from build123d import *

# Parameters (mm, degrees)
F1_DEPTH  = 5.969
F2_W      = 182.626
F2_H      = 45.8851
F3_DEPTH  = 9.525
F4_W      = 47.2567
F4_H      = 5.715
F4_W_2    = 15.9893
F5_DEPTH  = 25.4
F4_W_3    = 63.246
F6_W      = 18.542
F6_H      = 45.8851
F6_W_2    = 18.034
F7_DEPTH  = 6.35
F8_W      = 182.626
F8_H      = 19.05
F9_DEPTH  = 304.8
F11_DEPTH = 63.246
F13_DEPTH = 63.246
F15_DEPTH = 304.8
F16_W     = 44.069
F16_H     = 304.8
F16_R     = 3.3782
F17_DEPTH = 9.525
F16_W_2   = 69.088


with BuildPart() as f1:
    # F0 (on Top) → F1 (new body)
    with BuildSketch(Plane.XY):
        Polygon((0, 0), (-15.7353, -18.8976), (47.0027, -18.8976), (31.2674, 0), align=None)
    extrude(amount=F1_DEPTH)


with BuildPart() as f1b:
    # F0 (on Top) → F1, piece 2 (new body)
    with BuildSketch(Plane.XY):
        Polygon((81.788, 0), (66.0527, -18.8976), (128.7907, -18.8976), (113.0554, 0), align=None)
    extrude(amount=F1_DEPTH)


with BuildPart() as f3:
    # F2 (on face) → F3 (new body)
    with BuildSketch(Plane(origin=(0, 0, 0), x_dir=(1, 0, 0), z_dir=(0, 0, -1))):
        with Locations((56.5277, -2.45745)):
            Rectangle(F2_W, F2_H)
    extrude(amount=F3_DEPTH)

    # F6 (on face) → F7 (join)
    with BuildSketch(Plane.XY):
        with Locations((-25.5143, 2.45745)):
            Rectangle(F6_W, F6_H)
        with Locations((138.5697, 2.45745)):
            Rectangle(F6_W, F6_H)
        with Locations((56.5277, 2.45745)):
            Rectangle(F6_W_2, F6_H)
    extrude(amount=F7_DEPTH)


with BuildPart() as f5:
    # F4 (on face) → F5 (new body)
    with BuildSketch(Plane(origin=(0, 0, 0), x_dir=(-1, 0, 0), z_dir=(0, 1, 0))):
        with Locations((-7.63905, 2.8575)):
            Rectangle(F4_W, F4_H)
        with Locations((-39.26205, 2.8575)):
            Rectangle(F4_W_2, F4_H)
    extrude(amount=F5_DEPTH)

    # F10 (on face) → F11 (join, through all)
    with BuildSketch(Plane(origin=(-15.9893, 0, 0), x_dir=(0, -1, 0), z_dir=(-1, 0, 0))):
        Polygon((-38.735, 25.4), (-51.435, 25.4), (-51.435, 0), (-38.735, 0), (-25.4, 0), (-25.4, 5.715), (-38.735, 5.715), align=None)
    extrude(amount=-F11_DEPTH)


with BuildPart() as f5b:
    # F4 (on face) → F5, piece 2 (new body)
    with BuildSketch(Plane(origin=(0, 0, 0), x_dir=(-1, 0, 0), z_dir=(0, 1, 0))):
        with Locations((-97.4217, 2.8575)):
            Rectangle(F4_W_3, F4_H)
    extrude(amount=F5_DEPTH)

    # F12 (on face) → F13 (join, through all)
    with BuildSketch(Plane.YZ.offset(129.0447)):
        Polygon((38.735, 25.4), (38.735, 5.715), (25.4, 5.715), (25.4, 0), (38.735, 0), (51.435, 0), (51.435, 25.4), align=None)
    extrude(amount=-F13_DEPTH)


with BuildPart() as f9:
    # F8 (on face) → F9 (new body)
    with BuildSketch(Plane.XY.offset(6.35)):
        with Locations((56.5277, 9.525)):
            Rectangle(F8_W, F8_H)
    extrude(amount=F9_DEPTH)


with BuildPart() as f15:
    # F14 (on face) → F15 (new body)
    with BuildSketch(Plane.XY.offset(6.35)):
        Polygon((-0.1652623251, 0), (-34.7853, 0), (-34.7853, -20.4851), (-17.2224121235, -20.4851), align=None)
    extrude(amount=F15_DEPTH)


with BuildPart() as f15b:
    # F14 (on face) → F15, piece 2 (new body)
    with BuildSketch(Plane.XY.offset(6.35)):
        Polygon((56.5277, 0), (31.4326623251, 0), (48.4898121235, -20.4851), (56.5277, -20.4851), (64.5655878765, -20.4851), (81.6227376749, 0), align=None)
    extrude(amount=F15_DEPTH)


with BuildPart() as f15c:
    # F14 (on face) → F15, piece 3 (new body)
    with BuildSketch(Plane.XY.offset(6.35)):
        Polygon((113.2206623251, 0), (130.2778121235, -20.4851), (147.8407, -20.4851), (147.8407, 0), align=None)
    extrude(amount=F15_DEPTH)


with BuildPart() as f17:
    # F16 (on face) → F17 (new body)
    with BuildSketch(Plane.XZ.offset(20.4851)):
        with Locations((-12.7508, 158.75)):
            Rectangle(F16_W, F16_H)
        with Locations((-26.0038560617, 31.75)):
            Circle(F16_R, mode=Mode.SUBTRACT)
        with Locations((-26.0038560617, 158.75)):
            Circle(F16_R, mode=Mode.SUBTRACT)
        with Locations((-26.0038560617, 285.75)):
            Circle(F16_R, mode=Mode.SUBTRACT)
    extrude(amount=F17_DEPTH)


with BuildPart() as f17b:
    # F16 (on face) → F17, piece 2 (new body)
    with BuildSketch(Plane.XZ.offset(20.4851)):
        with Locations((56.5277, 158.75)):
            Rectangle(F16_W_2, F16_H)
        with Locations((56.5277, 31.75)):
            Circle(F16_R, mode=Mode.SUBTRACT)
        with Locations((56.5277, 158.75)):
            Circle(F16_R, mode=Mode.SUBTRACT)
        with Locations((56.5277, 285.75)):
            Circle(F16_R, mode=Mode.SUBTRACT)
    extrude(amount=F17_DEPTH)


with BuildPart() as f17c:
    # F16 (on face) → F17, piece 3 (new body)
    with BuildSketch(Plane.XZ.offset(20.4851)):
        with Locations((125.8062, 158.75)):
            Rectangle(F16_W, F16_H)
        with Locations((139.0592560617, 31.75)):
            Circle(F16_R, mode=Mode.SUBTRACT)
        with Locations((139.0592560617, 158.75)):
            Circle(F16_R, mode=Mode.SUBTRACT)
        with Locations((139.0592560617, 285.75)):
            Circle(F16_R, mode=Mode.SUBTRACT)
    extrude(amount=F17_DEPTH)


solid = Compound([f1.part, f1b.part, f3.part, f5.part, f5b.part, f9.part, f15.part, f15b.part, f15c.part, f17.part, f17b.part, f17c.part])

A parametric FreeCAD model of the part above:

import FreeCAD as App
import Part
import Sketcher
from FreeCAD import Vector
Q = App.Units.Quantity


def add_polygon(sketch, points):
    """Adds a closed chain of lines whose ends are joined by coincident constraints."""
    first, n = sketch.GeometryCount, len(points)
    for a, b in zip(points, points[1:] + points[:1]):
        sketch.addGeometry(Part.LineSegment(App.Vector(*a, 0), App.Vector(*b, 0)), False)
    for i in range(n):
        sketch.addConstraint(Sketcher.Constraint("Coincident", first + i, 2, first + (i + 1) % n, 1))

doc = App.newDocument("Part")
body = doc.addObject("PartDesign::Body", "Body")

sketch1 = body.newObject("Sketcher::SketchObject", "Sketch")
sketch1.AttachmentSupport = (doc.getObject("XY_Plane"), [""])
sketch1.MapMode = "FlatFace"
add_polygon(sketch1, [(0, 0), (-16, -19), (47, -19), (31, 0)])
sketch1.addConstraint([
    Sketcher.Constraint("Horizontal", 1),
    Sketcher.Constraint("Horizontal", 3),
    Sketcher.Constraint("Coincident", 3, 2, -1, 1),
    Sketcher.Constraint("Equal", 0, 2),
    Sketcher.Constraint("DistanceX", 1, 1, 1, 2, Q("2.47 in")),
    Sketcher.Constraint("DistanceX", 3, 2, 3, 1, Q("1.231 in")),
    Sketcher.Constraint("DistanceY", 0, 2, -1, 1, Q("0.744 in")),
])
pad1 = body.newObject("PartDesign::Pad", "Pad")
pad1.Profile = sketch1
pad1.Length = Q("0.235 in")
body2 = doc.addObject("PartDesign::Body", "Body001")

sketch2 = body2.newObject("Sketcher::SketchObject", "Sketch001")
sketch2.AttachmentSupport = (doc.getObject("XY_Plane001"), [""])
sketch2.MapMode = "FlatFace"
add_polygon(sketch2, [(82, 0), (66, -19), (129, -19), (113, 0)])
sketch2.addConstraint([
    Sketcher.Constraint("Horizontal", 1),
    Sketcher.Constraint("Horizontal", 3),
    Sketcher.Constraint("PointOnObject", 2, 2, -1),
    Sketcher.Constraint("Equal", 0, 2),
    Sketcher.Constraint("DistanceX", 1, 1, 1, 2, Q("2.47 in")),
    Sketcher.Constraint("DistanceX", 3, 2, 3, 1, Q("1.231 in")),
    Sketcher.Constraint("DistanceX", -1, 1, 3, 2, Q("3.22 in")),
    Sketcher.Constraint("DistanceY", 0, 2, -1, 1, Q("0.744 in")),
])
pad2 = body2.newObject("PartDesign::Pad", "Pad001")
pad2.Profile = sketch2
pad2.Length = Q("0.235 in")
body3 = doc.addObject("PartDesign::Body", "Body002")

sketch3 = body3.newObject("Sketcher::SketchObject", "Sketch002")
sketch3.AttachmentSupport = (doc.getObject("XY_Plane002"), [""])
sketch3.MapMode = "FlatFace"
add_polygon(sketch3, [(-35, -20), (-35, 25), (148, 25), (148, -20)])
sketch3.addConstraint([
    Sketcher.Constraint("Vertical", 0),
    Sketcher.Constraint("Horizontal", 1),
    Sketcher.Constraint("Vertical", 2),
    Sketcher.Constraint("Horizontal", 3),
    Sketcher.Constraint("DistanceY", -1, 1, 0, 2, Q("1 in")),
    Sketcher.Constraint("DistanceX", 1, 1, 1, 2, Q("7.19 in")),
    Sketcher.Constraint("DistanceY", 0, 1, 0, 2, Q("1.8065 in")),
    Sketcher.Constraint("DistanceX", 0, 2, -1, 1, Q("1.3695 in")),
])
pad3 = body3.newObject("PartDesign::Pad", "Pad002")
pad3.Profile = sketch3
pad3.Length = Q("0.375 in")
pad3.Reversed = True

sketch4 = body3.newObject("Sketcher::SketchObject", "Sketch003")
sketch4.AttachmentSupport = (doc.getObject("XY_Plane002"), [""])
sketch4.MapMode = "FlatFace"
add_polygon(sketch4, [(-35, 25), (-35, -20), (-16, -20), (-16, 25)])
add_polygon(sketch4, [(129, 25), (129, -20), (148, -20), (148, 25)])
add_polygon(sketch4, [(48, 25), (48, -20), (66, -20), (66, 25)])
sketch4.addConstraint([
    Sketcher.Constraint("Vertical", 0),
    Sketcher.Constraint("Horizontal", 1),
    Sketcher.Constraint("Vertical", 2),
    Sketcher.Constraint("Horizontal", 3),
    Sketcher.Constraint("Vertical", 4),
    Sketcher.Constraint("Horizontal", 5),
    Sketcher.Constraint("Vertical", 6),
    Sketcher.Constraint("Horizontal", 7),
    Sketcher.Constraint("Vertical", 8),
    Sketcher.Constraint("Horizontal", 9),
    Sketcher.Constraint("Vertical", 10),
    Sketcher.Constraint("Horizontal", 11),
    Sketcher.Constraint("Horizontal", 1, 2, 4, 2),
    Sketcher.Constraint("Horizontal", 3, 2, 6, 2),
    Sketcher.Constraint("Horizontal", 5, 2, 8, 2),
    Sketcher.Constraint("Horizontal", 7, 2, 10, 2),
    Sketcher.Constraint("Equal", 3, 5),
    Sketcher.Constraint("DistanceY", -1, 1, 2, 2, Q("1 in")),
    Sketcher.Constraint("DistanceX", 1, 1, 1, 2, Q("0.73 in")),
    Sketcher.Constraint("DistanceX", 9, 1, 9, 2, Q("0.71 in")),
    Sketcher.Constraint("DistanceX", 1, 2, 4, 2, Q("5.73 in")),
    Sketcher.Constraint("DistanceX", 1, 2, 8, 2, Q("2.51 in")),
    Sketcher.Constraint("DistanceY", 0, 2, 0, 1, Q("1.8065 in")),
    Sketcher.Constraint("DistanceX", 0, 2, -1, 1, Q("1.3695 in")),
])
pad4 = body3.newObject("PartDesign::Pad", "Pad003")
pad4.Profile = sketch4
pad4.Length = Q("0.25 in")
body4 = doc.addObject("PartDesign::Body", "Body003")

sketch5 = body4.newObject("Sketcher::SketchObject", "Sketch004")
sketch5.AttachmentSupport = (doc.getObject("XZ_Plane003"), [""])
sketch5.MapMode = "FlatFace"
add_polygon(sketch5, [(-16, 0), (-16, 6), (47, 6), (47, 0)])
sketch5.addConstraint([
    Sketcher.Constraint("Vertical", 0),
    Sketcher.Constraint("Horizontal", 1),
    Sketcher.Constraint("Vertical", 2),
    Sketcher.Constraint("Horizontal", 3),
    Sketcher.Constraint("PointOnObject", 2, 2, -1),
    Sketcher.Constraint("DistanceX", 1, 1, 1, 2, Q("2.49 in")),
    Sketcher.Constraint("DistanceY", 0, 1, 0, 2, Q("0.225 in")),
    Sketcher.Constraint("DistanceX", 0, 2, -1, 1, Q("0.6295 in")),
])
pad5 = body4.newObject("PartDesign::Pad", "Pad004")
pad5.Profile = sketch5
pad5.Length = Q("1 in")
pad5.Reversed = True

sketch6 = body4.newObject("Sketcher::SketchObject", "Sketch005")
sketch6.AttachmentSupport = (doc.getObject("YZ_Plane003"), [""])
sketch6.MapMode = "FlatFace"
sketch6.AttachmentOffset = App.Placement(Vector(0, 0, -0.6295 * 25.4), App.Rotation())
add_polygon(sketch6, [(39, 25), (51, 25), (51, 0), (25, 0), (25, 6), (39, 6)])
sketch6.addConstraint([
    Sketcher.Constraint("Horizontal", 0),
    Sketcher.Constraint("Vertical", 1),
    Sketcher.Constraint("Horizontal", 2),
    Sketcher.Constraint("Vertical", 3),
    Sketcher.Constraint("Horizontal", 4),
    Sketcher.Constraint("Vertical", 5),
    Sketcher.Constraint("PointOnObject", 1, 2, -1),
    Sketcher.Constraint("DistanceY", 1, 2, 1, 1, Q("1 in")),
    Sketcher.Constraint("DistanceX", 0, 1, 0, 2, Q("0.5 in")),
    Sketcher.Constraint("DistanceX", -1, 1, 2, 2, Q("1 in")),
    Sketcher.Constraint("DistanceX", 2, 2, 2, 1, Q("1.025 in")),
    Sketcher.Constraint("DistanceY", 3, 1, 3, 2, Q("0.225 in")),
])
pad6 = body4.newObject("PartDesign::Pad", "Pad005")
pad6.Profile = sketch6
pad6.Length = Q("2.49 in")
body5 = doc.addObject("PartDesign::Body", "Body004")

sketch7 = body5.newObject("Sketcher::SketchObject", "Sketch006")
sketch7.AttachmentSupport = (doc.getObject("XZ_Plane004"), [""])
sketch7.MapMode = "FlatFace"
add_polygon(sketch7, [(129, 6), (129, 0), (66, 0), (66, 6)])
sketch7.addConstraint([
    Sketcher.Constraint("Vertical", 0),
    Sketcher.Constraint("Horizontal", 1),
    Sketcher.Constraint("Vertical", 2),
    Sketcher.Constraint("Horizontal", 3),
    Sketcher.Constraint("PointOnObject", 0, 2, -1),
    Sketcher.Constraint("DistanceX", 1, 2, 1, 1, Q("2.49 in")),
    Sketcher.Constraint("DistanceY", 0, 2, 0, 1, Q("0.225 in")),
    Sketcher.Constraint("DistanceX", -1, 1, 0, 2, Q("5.0805 in")),
])
pad7 = body5.newObject("PartDesign::Pad", "Pad006")
pad7.Profile = sketch7
pad7.Length = Q("1 in")
pad7.Reversed = True

sketch8 = body5.newObject("Sketcher::SketchObject", "Sketch007")
sketch8.AttachmentSupport = (doc.getObject("YZ_Plane004"), [""])
sketch8.MapMode = "FlatFace"
sketch8.AttachmentOffset = App.Placement(Vector(0, 0, 5.0805 * 25.4), App.Rotation())
add_polygon(sketch8, [(39, 25), (39, 6), (25, 6), (25, 0), (51, 0), (51, 25)])
sketch8.addConstraint([
    Sketcher.Constraint("Vertical", 0),
    Sketcher.Constraint("Horizontal", 1),
    Sketcher.Constraint("Vertical", 2),
    Sketcher.Constraint("Horizontal", 3),
    Sketcher.Constraint("Vertical", 4),
    Sketcher.Constraint("Horizontal", 5),
    Sketcher.Constraint("PointOnObject", 2, 2, -1),
    Sketcher.Constraint("DistanceY", 4, 1, 4, 2, Q("1 in")),
    Sketcher.Constraint("DistanceX", 5, 2, 5, 1, Q("0.5 in")),
    Sketcher.Constraint("DistanceX", -1, 1, 1, 2, Q("1 in")),
    Sketcher.Constraint("DistanceX", 1, 2, 1, 1, Q("0.525 in")),
    Sketcher.Constraint("DistanceY", 0, 2, 0, 1, Q("0.775 in")),
])
pad8 = body5.newObject("PartDesign::Pad", "Pad007")
pad8.Profile = sketch8
pad8.Length = Q("2.49 in")
pad8.Reversed = True
body6 = doc.addObject("PartDesign::Body", "Body005")

sketch9 = body6.newObject("Sketcher::SketchObject", "Sketch008")
sketch9.AttachmentSupport = (doc.getObject("XY_Plane005"), [""])
sketch9.MapMode = "FlatFace"
sketch9.AttachmentOffset = App.Placement(Vector(0, 0, 0.25 * 25.4), App.Rotation())
add_polygon(sketch9, [(-35, 19), (-35, 0), (148, 0), (148, 19)])
sketch9.addConstraint([
    Sketcher.Constraint("Vertical", 0),
    Sketcher.Constraint("Horizontal", 1),
    Sketcher.Constraint("Vertical", 2),
    Sketcher.Constraint("Horizontal", 3),
    Sketcher.Constraint("PointOnObject", 0, 2, -1),
    Sketcher.Constraint("DistanceX", 1, 1, 1, 2, Q("7.19 in")),
    Sketcher.Constraint("DistanceY", 0, 2, 0, 1, Q("0.75 in")),
    Sketcher.Constraint("DistanceX", 0, 2, -1, 1, Q("1.3695 in")),
])
pad9 = body6.newObject("PartDesign::Pad", "Pad008")
pad9.Profile = sketch9
pad9.Length = Q("12 in")
body7 = doc.addObject("PartDesign::Body", "Body006")

sketch10 = body7.newObject("Sketcher::SketchObject", "Sketch009")
sketch10.AttachmentSupport = (doc.getObject("XY_Plane006"), [""])
sketch10.MapMode = "FlatFace"
sketch10.AttachmentOffset = App.Placement(Vector(0, 0, 0.25 * 25.4), App.Rotation())
add_polygon(sketch10, [(0, 0), (-35, 0), (-35, -20), (-17, -20)])
sketch10.addConstraint([
    Sketcher.Constraint("Horizontal", 0),
    Sketcher.Constraint("Vertical", 1),
    Sketcher.Constraint("Horizontal", 2),
    Sketcher.Constraint("PointOnObject", 0, 2, -1),
    Sketcher.Constraint("DistanceY", 1, 2, 1, 1, Q("0.8065 in")),
    Sketcher.Constraint("DistanceX", 0, 2, -1, 1, Q("1.3695 in")),
    Sketcher.Constraint("DistanceX", 0, 2, 0, 1, 34.620038),
    Sketcher.Constraint("DistanceX", 2, 1, 2, 2, 17.562888),
])
pad10 = body7.newObject("PartDesign::Pad", "Pad009")
pad10.Profile = sketch10
pad10.Length = Q("12 in")
body8 = doc.addObject("PartDesign::Body", "Body007")

sketch11 = body8.newObject("Sketcher::SketchObject", "Sketch010")
sketch11.AttachmentSupport = (doc.getObject("XY_Plane007"), [""])
sketch11.MapMode = "FlatFace"
sketch11.AttachmentOffset = App.Placement(Vector(0, 0, 0.25 * 25.4), App.Rotation())
add_polygon(sketch11, [(31, 0), (48, -20), (65, -20), (82, 0)])
sketch11.addConstraint([
    Sketcher.Constraint("Horizontal", 1),
    Sketcher.Constraint("Horizontal", 3),
    Sketcher.Constraint("PointOnObject", 2, 2, -1),
    Sketcher.Constraint("Equal", 0, 2),
    Sketcher.Constraint("DistanceY", 0, 2, -1, 1, Q("0.8065 in")),
    Sketcher.Constraint("DistanceX", 1, 1, 1, 2, 16.075776),
    Sketcher.Constraint("DistanceX", 3, 2, 3, 1, 50.190075),
    Sketcher.Constraint("DistanceX", -1, 1, 0, 2, 48.489812),
])
pad11 = body8.newObject("PartDesign::Pad", "Pad010")
pad11.Profile = sketch11
pad11.Length = Q("12 in")
body9 = doc.addObject("PartDesign::Body", "Body008")

sketch12 = body9.newObject("Sketcher::SketchObject", "Sketch011")
sketch12.AttachmentSupport = (doc.getObject("XY_Plane008"), [""])
sketch12.MapMode = "FlatFace"
sketch12.AttachmentOffset = App.Placement(Vector(0, 0, 0.25 * 25.4), App.Rotation())
add_polygon(sketch12, [(113, 0), (130, -20), (148, -20), (148, 0)])
sketch12.addConstraint([
    Sketcher.Constraint("Horizontal", 1),
    Sketcher.Constraint("Vertical", 2),
    Sketcher.Constraint("Horizontal", 3),
    Sketcher.Constraint("PointOnObject", 2, 2, -1),
    Sketcher.Constraint("DistanceY", 2, 1, 2, 2, Q("0.8065 in")),
    Sketcher.Constraint("DistanceX", -1, 1, 1, 2, Q("5.8205 in")),
    Sketcher.Constraint("DistanceX", 1, 1, 1, 2, 17.562888),
    Sketcher.Constraint("DistanceX", 3, 2, 3, 1, 34.620038),
])
pad12 = body9.newObject("PartDesign::Pad", "Pad011")
pad12.Profile = sketch12
pad12.Length = Q("12 in")
body10 = doc.addObject("PartDesign::Body", "Body009")

sketch13 = body10.newObject("Sketcher::SketchObject", "Sketch012")
sketch13.AttachmentSupport = (doc.getObject("XZ_Plane009"), [""])
sketch13.MapMode = "FlatFace"
sketch13.AttachmentOffset = App.Placement(Vector(0, 0, 0.8065 * 25.4), App.Rotation())
add_polygon(sketch13, [(-34.8, 311.1), (-34.8, 6.3), (9.3, 6.3), (9.3, 311.1)])
sketch13.addGeometry(Part.Circle(Vector(-26, 31.8, 0), Vector(0, 0, 1), 3.4), False)
sketch13.addGeometry(Part.Circle(Vector(-26, 158.8, 0), Vector(0, 0, 1), 3.4), False)
sketch13.addGeometry(Part.Circle(Vector(-26, 285.8, 0), Vector(0, 0, 1), 3.4), False)
sketch13.addConstraint([
    Sketcher.Constraint("Vertical", 0),
    Sketcher.Constraint("Horizontal", 1),
    Sketcher.Constraint("Vertical", 2),
    Sketcher.Constraint("Horizontal", 3),
    Sketcher.Constraint("Equal", 4, 5),
    Sketcher.Constraint("Equal", 5, 6),
    Sketcher.Constraint("Vertical", 4, 3, 5, 3),
    Sketcher.Constraint("Vertical", 5, 3, 6, 3),
    Sketcher.Constraint("DistanceY", 0, 2, 0, 1, Q("12 in")),
    Sketcher.Constraint("Diameter", 4, Q("0.266 in")),
    Sketcher.Constraint("DistanceY", 4, 3, 5, 3, Q("5 in")),
    Sketcher.Constraint("DistanceY", 5, 3, 6, 3, Q("5 in")),
    Sketcher.Constraint("DistanceY", 0, 2, 4, 3, Q("1 in")),
    Sketcher.Constraint("DistanceX", 1, 1, 1, 2, Q("1.735 in")),
    Sketcher.Constraint("DistanceY", -1, 1, 4, 3, Q("1.25 in")),
    Sketcher.Constraint("DistanceX", 0, 2, -1, 1, Q("1.3695 in")),
    Sketcher.Constraint("DistanceX", 4, 3, -1, 1, 26.003856),
])
pad13 = body10.newObject("PartDesign::Pad", "Pad012")
pad13.Profile = sketch13
pad13.Length = Q("0.375 in")
body11 = doc.addObject("PartDesign::Body", "Body010")

sketch14 = body11.newObject("Sketcher::SketchObject", "Sketch013")
sketch14.AttachmentSupport = (doc.getObject("XZ_Plane010"), [""])
sketch14.MapMode = "FlatFace"
sketch14.AttachmentOffset = App.Placement(Vector(0, 0, 0.8065 * 25.4), App.Rotation())
add_polygon(sketch14, [(22, 311.1), (22, 6.3), (91.1, 6.3), (91.1, 311.1)])
sketch14.addGeometry(Part.Circle(Vector(56.5, 31.8, 0), Vector(0, 0, 1), 3.4), False)
sketch14.addGeometry(Part.Circle(Vector(56.5, 158.8, 0), Vector(0, 0, 1), 3.4), False)
sketch14.addGeometry(Part.Circle(Vector(56.5, 285.8, 0), Vector(0, 0, 1), 3.4), False)
sketch14.addConstraint([
    Sketcher.Constraint("Vertical", 0),
    Sketcher.Constraint("Horizontal", 1),
    Sketcher.Constraint("Vertical", 2),
    Sketcher.Constraint("Horizontal", 3),
    Sketcher.Constraint("Equal", 4, 5),
    Sketcher.Constraint("Equal", 5, 6),
    Sketcher.Constraint("Vertical", 4, 3, 5, 3),
    Sketcher.Constraint("Vertical", 5, 3, 6, 3),
    Sketcher.Constraint("DistanceY", 0, 2, 0, 1, Q("12 in")),
    Sketcher.Constraint("Diameter", 4, Q("0.266 in")),
    Sketcher.Constraint("DistanceY", 4, 3, 5, 3, Q("5 in")),
    Sketcher.Constraint("DistanceY", 5, 3, 6, 3, Q("5 in")),
    Sketcher.Constraint("DistanceY", 0, 2, 4, 3, Q("1 in")),
    Sketcher.Constraint("DistanceX", 1, 1, 1, 2, Q("2.72 in")),
    Sketcher.Constraint("DistanceY", -1, 1, 4, 3, Q("1.25 in")),
    Sketcher.Constraint("DistanceX", 0, 2, 4, 3, Q("1.36 in")),
    Sketcher.Constraint("DistanceX", -1, 1, 4, 3, Q("2.2255 in")),
])
pad14 = body11.newObject("PartDesign::Pad", "Pad013")
pad14.Profile = sketch14
pad14.Length = Q("0.375 in")
body12 = doc.addObject("PartDesign::Body", "Body011")

sketch15 = body12.newObject("Sketcher::SketchObject", "Sketch014")
sketch15.AttachmentSupport = (doc.getObject("XZ_Plane011"), [""])
sketch15.MapMode = "FlatFace"
sketch15.AttachmentOffset = App.Placement(Vector(0, 0, 0.8065 * 25.4), App.Rotation())
add_polygon(sketch15, [(103.8, 311.1), (103.8, 6.3), (147.8, 6.3), (147.8, 311.1)])
sketch15.addGeometry(Part.Circle(Vector(139.1, 31.8, 0), Vector(0, 0, 1), 3.4), False)
sketch15.addGeometry(Part.Circle(Vector(139.1, 158.8, 0), Vector(0, 0, 1), 3.4), False)
sketch15.addGeometry(Part.Circle(Vector(139.1, 285.8, 0), Vector(0, 0, 1), 3.4), False)
sketch15.addConstraint([
    Sketcher.Constraint("Vertical", 0),
    Sketcher.Constraint("Horizontal", 1),
    Sketcher.Constraint("Vertical", 2),
    Sketcher.Constraint("Horizontal", 3),
    Sketcher.Constraint("Equal", 4, 5),
    Sketcher.Constraint("Equal", 5, 6),
    Sketcher.Constraint("Vertical", 4, 3, 5, 3),
    Sketcher.Constraint("Vertical", 5, 3, 6, 3),
    Sketcher.Constraint("DistanceY", 0, 2, 0, 1, Q("12 in")),
    Sketcher.Constraint("Diameter", 4, Q("0.266 in")),
    Sketcher.Constraint("DistanceY", 4, 3, 5, 3, Q("5 in")),
    Sketcher.Constraint("DistanceY", 5, 3, 6, 3, Q("5 in")),
    Sketcher.Constraint("DistanceY", 0, 2, 4, 3, Q("1 in")),
    Sketcher.Constraint("DistanceX", 1, 1, 1, 2, Q("1.735 in")),
    Sketcher.Constraint("DistanceY", -1, 1, 4, 3, Q("1.25 in")),
    Sketcher.Constraint("DistanceX", -1, 1, 0, 2, Q("4.0855 in")),
    Sketcher.Constraint("DistanceX", -1, 1, 4, 3, 139.059256),
])
pad15 = body12.newObject("PartDesign::Pad", "Pad014")
pad15.Profile = sketch15
pad15.Length = Q("0.375 in")

doc.recompute()
